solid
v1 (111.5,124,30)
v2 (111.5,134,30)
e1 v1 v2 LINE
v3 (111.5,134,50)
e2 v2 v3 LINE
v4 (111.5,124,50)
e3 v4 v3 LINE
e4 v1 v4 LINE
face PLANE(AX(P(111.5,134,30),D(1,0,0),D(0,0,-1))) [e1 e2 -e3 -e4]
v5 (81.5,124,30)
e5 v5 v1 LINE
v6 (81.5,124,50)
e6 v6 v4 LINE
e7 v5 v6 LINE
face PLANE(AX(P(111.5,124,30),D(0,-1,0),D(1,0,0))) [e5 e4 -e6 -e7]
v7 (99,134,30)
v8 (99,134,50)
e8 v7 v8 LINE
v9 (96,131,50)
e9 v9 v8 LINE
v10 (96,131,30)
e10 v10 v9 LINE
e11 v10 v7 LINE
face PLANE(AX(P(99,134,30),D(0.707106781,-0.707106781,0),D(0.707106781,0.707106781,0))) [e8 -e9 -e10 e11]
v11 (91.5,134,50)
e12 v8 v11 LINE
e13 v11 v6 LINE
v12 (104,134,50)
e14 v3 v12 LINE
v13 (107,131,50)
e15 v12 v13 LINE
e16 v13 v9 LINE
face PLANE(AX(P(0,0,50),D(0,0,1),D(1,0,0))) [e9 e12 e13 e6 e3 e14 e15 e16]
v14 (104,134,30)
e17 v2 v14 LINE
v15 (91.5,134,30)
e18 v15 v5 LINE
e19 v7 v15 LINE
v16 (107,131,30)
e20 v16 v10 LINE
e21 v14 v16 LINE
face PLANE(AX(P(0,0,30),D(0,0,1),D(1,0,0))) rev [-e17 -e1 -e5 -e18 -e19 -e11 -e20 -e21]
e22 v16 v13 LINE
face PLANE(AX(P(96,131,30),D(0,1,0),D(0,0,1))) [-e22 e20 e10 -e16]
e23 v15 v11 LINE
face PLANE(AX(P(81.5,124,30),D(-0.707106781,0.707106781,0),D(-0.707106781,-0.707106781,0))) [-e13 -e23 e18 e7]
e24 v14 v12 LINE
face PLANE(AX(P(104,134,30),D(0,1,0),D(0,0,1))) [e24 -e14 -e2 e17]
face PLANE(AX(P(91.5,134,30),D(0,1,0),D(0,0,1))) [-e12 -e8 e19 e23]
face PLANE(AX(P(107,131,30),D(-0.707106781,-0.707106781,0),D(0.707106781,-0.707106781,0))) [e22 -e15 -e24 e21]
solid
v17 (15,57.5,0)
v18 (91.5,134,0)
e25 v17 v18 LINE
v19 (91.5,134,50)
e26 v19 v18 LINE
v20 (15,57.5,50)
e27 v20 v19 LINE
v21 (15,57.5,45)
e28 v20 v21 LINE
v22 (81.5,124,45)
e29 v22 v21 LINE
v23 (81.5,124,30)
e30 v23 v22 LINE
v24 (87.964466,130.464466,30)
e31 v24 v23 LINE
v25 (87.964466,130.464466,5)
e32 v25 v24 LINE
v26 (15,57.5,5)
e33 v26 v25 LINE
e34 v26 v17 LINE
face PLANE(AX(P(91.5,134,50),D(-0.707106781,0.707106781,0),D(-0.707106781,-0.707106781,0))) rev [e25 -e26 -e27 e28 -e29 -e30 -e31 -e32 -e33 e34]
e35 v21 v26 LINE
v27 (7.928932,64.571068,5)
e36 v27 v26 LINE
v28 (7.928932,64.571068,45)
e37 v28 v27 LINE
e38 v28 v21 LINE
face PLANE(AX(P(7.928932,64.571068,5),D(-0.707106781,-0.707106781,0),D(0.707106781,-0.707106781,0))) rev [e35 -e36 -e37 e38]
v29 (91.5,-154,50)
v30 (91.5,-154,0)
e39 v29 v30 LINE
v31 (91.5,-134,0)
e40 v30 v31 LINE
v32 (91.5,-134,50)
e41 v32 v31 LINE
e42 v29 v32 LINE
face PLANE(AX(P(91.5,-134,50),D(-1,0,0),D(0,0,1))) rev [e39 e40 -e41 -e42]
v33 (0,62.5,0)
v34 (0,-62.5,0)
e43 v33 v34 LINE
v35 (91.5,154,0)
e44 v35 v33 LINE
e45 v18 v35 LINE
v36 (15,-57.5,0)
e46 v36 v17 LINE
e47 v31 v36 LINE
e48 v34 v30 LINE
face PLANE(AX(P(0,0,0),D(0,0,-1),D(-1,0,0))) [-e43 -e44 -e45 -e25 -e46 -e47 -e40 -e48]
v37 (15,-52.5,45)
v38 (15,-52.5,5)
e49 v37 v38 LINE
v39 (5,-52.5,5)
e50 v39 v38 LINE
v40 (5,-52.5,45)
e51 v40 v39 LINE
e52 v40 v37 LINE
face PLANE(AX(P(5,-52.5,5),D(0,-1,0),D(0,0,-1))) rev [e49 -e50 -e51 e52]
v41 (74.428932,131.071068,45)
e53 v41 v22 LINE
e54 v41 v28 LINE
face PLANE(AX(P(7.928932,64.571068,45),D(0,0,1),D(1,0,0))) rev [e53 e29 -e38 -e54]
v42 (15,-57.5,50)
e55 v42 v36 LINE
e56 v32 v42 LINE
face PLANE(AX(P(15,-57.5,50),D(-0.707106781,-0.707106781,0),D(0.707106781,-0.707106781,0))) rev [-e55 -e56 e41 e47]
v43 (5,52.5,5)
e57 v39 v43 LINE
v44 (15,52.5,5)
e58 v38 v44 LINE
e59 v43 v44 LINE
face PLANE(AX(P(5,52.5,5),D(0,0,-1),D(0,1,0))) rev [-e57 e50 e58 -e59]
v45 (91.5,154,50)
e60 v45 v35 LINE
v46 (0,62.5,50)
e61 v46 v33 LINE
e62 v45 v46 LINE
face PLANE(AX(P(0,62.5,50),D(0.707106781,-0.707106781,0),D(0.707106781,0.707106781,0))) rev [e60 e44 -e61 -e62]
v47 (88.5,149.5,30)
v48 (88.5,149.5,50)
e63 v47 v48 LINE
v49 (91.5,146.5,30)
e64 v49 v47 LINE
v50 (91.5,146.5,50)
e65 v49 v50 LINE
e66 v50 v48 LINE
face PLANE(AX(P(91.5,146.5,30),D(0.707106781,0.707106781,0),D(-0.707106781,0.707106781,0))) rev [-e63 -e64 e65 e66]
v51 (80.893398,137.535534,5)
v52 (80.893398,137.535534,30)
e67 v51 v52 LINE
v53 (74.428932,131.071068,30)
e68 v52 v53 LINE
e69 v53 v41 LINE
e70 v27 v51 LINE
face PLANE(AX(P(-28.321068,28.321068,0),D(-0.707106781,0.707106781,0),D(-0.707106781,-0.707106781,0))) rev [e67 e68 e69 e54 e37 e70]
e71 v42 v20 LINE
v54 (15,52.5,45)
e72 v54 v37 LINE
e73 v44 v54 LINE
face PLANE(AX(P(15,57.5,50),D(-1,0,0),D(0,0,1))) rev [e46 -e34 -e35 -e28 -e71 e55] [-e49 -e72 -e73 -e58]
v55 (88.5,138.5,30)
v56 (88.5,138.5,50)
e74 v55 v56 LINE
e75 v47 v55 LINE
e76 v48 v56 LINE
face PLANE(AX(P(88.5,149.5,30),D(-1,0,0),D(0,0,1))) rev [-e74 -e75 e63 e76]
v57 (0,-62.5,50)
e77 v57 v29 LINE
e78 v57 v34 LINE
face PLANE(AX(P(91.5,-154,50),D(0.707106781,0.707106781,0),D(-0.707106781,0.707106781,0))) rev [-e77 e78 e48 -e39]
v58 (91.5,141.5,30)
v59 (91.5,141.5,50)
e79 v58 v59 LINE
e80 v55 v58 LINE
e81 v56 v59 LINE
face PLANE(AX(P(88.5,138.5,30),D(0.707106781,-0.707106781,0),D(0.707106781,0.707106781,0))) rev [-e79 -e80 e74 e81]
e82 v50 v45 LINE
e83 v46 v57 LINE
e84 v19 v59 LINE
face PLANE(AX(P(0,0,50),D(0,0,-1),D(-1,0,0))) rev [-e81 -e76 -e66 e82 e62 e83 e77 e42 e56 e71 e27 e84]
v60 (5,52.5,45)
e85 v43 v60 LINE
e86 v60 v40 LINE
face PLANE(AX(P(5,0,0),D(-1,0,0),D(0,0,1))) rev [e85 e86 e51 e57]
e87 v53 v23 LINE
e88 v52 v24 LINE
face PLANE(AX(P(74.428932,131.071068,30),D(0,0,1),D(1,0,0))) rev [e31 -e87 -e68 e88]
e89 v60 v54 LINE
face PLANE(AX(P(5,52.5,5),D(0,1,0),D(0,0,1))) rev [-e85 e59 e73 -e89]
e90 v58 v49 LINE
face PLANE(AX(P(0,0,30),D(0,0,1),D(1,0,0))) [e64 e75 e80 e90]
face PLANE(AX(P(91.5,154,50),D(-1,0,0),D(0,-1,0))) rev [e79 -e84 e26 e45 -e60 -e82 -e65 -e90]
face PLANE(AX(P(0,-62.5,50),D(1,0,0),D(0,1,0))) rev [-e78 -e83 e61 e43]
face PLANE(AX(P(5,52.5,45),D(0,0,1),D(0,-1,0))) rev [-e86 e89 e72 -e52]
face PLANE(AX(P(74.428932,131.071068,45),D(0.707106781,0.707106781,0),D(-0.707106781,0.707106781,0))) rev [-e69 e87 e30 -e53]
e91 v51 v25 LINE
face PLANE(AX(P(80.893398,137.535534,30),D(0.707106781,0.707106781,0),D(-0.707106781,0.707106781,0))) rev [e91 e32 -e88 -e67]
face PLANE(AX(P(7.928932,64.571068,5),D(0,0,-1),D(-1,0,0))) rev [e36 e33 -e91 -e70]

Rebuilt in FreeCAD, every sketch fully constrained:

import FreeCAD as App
import Part
import Sketcher

doc = App.newDocument("Part")
body = doc.addObject("PartDesign::Body", "Body")

# Sketch on XY plane
sketch1 = body.newObject("Sketcher::SketchObject", "Sketch")
sketch1.AttachmentSupport = (doc.getObject("XY_Plane"), [""])
sketch1.MapMode = "FlatFace"
sketch1.addGeometry(Part.LineSegment(App.Vector(0, 62, 0), App.Vector(0, -62, 0)), False)
sketch1.addGeometry(Part.LineSegment(App.Vector(0, -62, 0), App.Vector(92, -154, 0)), False)
sketch1.addGeometry(Part.LineSegment(App.Vector(92, -154, 0), App.Vector(92, -134, 0)), False)
sketch1.addGeometry(Part.LineSegment(App.Vector(92, -134, 0), App.Vector(15, -58, 0)), False)
sketch1.addGeometry(Part.LineSegment(App.Vector(15, -58, 0), App.Vector(15, 58, 0)), False)
sketch1.addGeometry(Part.LineSegment(App.Vector(15, 58, 0), App.Vector(92, 134, 0)), False)
sketch1.addGeometry(Part.LineSegment(App.Vector(92, 134, 0), App.Vector(92, 154, 0)), False)
sketch1.addGeometry(Part.LineSegment(App.Vector(92, 154, 0), App.Vector(0, 62, 0)), False)
sketch1.addConstraint(Sketcher.Constraint("Coincident", 0, 2, 1, 1))
sketch1.addConstraint(Sketcher.Constraint("Coincident", 1, 2, 2, 1))
sketch1.addConstraint(Sketcher.Constraint("Coincident", 2, 2, 3, 1))
sketch1.addConstraint(Sketcher.Constraint("Coincident", 3, 2, 4, 1))
sketch1.addConstraint(Sketcher.Constraint("Coincident", 4, 2, 5, 1))
sketch1.addConstraint(Sketcher.Constraint("Coincident", 5, 2, 6, 1))
sketch1.addConstraint(Sketcher.Constraint("Coincident", 6, 2, 7, 1))
sketch1.addConstraint(Sketcher.Constraint("Coincident", 7, 2, 0, 1))
sketch1.addConstraint(Sketcher.Constraint("Vertical", 0))
sketch1.addConstraint(Sketcher.Constraint("Vertical", 2))
sketch1.addConstraint(Sketcher.Constraint("Vertical", 4))
sketch1.addConstraint(Sketcher.Constraint("Vertical", 6))
sketch1.addConstraint(Sketcher.Constraint("Symmetric", 0, 2, 7, 2, -1, 1))
sketch1.addConstraint(Sketcher.Constraint("Symmetric", 2, 2, 5, 2, -1))
sketch1.addConstraint(Sketcher.Constraint("Parallel", 1, 3))
sketch1.addConstraint(Sketcher.Constraint("Perpendicular", 3, 5))
sketch1.addConstraint(Sketcher.Constraint("Parallel", 5, 7))
sketch1.addConstraint(Sketcher.Constraint("Equal", 2, 6))
sketch1.addConstraint(Sketcher.Constraint("DistanceY", 0, 2, 0, 1, 125.0))
sketch1.addConstraint(Sketcher.Constraint("DistanceY", 2, 1, 2, 2, 20.0))
sketch1.addConstraint(Sketcher.Constraint("DistanceY", 4, 1, 4, 2, 115.0))
sketch1.addConstraint(Sketcher.Constraint("DistanceY", 1, 2, -1, 1, 154.0))
pad1 = body.newObject("PartDesign::Pad", "Pad")
pad1.Profile = sketch1
pad1.Length = 50

# Sketch on an angled plane
sketch2 = body.newObject("Sketcher::SketchObject", "Sketch001")
sketch2.Placement = App.Placement(App.Vector(-21.25, 21.25, 0), App.Rotation(App.Vector(0, 0, -1), App.Vector(0.707106781, 0.707106781, 0), App.Vector(0.707106781, -0.707106781, 0), "ZXY"))
sketch2.addGeometry(Part.LineSegment(App.Vector(-45, 51, 0), App.Vector(-5, 51, 0)), False)
sketch2.addGeometry(Part.LineSegment(App.Vector(-5, 51, 0), App.Vector(-5, 154, 0)), False)
sketch2.addGeometry(Part.LineSegment(App.Vector(-5, 154, 0), App.Vector(-30, 154, 0)), False)
sketch2.addGeometry(Part.LineSegment(App.Vector(-30, 154, 0), App.Vector(-30, 145, 0)), False)
sketch2.addGeometry(Part.LineSegment(App.Vector(-30, 145, 0), App.Vector(-45, 145, 0)), False)
sketch2.addGeometry(Part.LineSegment(App.Vector(-45, 145, 0), App.Vector(-45, 51, 0)), False)
sketch2.addConstraint(Sketcher.Constraint("Coincident", 0, 2, 1, 1))
sketch2.addConstraint(Sketcher.Constraint("Coincident", 1, 2, 2, 1))
sketch2.addConstraint(Sketcher.Constraint("Coincident", 2, 2, 3, 1))
sketch2.addConstraint(Sketcher.Constraint("Coincident", 3, 2, 4, 1))
sketch2.addConstraint(Sketcher.Constraint("Coincident", 4, 2, 5, 1))
sketch2.addConstraint(Sketcher.Constraint("Coincident", 5, 2, 0, 1))
sketch2.addConstraint(Sketcher.Constraint("Horizontal", 0))
sketch2.addConstraint(Sketcher.Constraint("Vertical", 1))
sketch2.addConstraint(Sketcher.Constraint("Horizontal", 2))
sketch2.addConstraint(Sketcher.Constraint("Vertical", 3))
sketch2.addConstraint(Sketcher.Constraint("Horizontal", 4))
sketch2.addConstraint(Sketcher.Constraint("Vertical", 5))
sketch2.addConstraint(Sketcher.Constraint("DistanceX", 0, 1, 0, 2, 40.0))
sketch2.addConstraint(Sketcher.Constraint("DistanceX", 2, 2, 2, 1, 25.0))
sketch2.addConstraint(Sketcher.Constraint("DistanceX", 0, 2, -1, 1, 5.0))
sketch2.addConstraint(Sketcher.Constraint("DistanceY", 5, 2, 5, 1, 94.045202))
sketch2.addConstraint(Sketcher.Constraint("DistanceY", 1, 1, 1, 2, 103.187337))
sketch2.addConstraint(Sketcher.Constraint("DistanceY", -1, 1, 0, 2, 51.265242))
pocket1 = body.newObject("PartDesign::Pocket", "Pocket")
pocket1.Profile = sketch2
pocket1.Length = 10

# Sketch on YZ plane
sketch3 = body.newObject("Sketcher::SketchObject", "Sketch002")
sketch3.AttachmentSupport = (doc.getObject("YZ_Plane"), [""])
sketch3.MapMode = "FlatFace"
sketch3.AttachmentOffset = App.Placement(App.Vector(0, 0, 15), App.Rotation())
sketch3.addGeometry(Part.LineSegment(App.Vector(52, 45, 0), App.Vector(-52, 45, 0)), False)
sketch3.addGeometry(Part.LineSegment(App.Vector(-52, 45, 0), App.Vector(-52, 5, 0)), False)
sketch3.addGeometry(Part.LineSegment(App.Vector(-52, 5, 0), App.Vector(52, 5, 0)), False)
sketch3.addGeometry(Part.LineSegment(App.Vector(52, 5, 0), App.Vector(52, 45, 0)), False)
sketch3.addConstraint(Sketcher.Constraint("Coincident", 0, 2, 1, 1))
sketch3.addConstraint(Sketcher.Constraint("Coincident", 1, 2, 2, 1))
sketch3.addConstraint(Sketcher.Constraint("Coincident", 2, 2, 3, 1))
sketch3.addConstraint(Sketcher.Constraint("Coincident", 3, 2, 0, 1))
sketch3.addConstraint(Sketcher.Constraint("Horizontal", 0))
sketch3.addConstraint(Sketcher.Constraint("Vertical", 1))
sketch3.addConstraint(Sketcher.Constraint("Horizontal", 2))
sketch3.addConstraint(Sketcher.Constraint("Vertical", 3))
sketch3.addConstraint(Sketcher.Constraint("DistanceX", 0, 2, 0, 1, 105.0))
sketch3.addConstraint(Sketcher.Constraint("DistanceY", 1, 2, 1, 1, 40.0))
sketch3.addConstraint(Sketcher.Constraint("DistanceY", -1, 1, 0, 2, 45.0))
sketch3.addConstraint(Sketcher.Constraint("DistanceX", 0, 2, -1, 1, 52.5))
pocket2 = body.newObject("PartDesign::Pocket", "Pocket001")
pocket2.Profile = sketch3
pocket2.Length = 10

# Sketch on XY plane
sketch4 = body.newObject("Sketcher::SketchObject", "Sketch003")
sketch4.AttachmentSupport = (doc.getObject("XY_Plane"), [""])
sketch4.MapMode = "FlatFace"
sketch4.AttachmentOffset = App.Placement(App.Vector(0, 0, 50), App.Rotation())
sketch4.addGeometry(Part.LineSegment(App.Vector(91.5, 146.5, 0), App.Vector(88.5, 149.5, 0)), False)
sketch4.addGeometry(Part.LineSegment(App.Vector(88.5, 149.5, 0), App.Vector(88.5, 138.5, 0)), False)
sketch4.addGeometry(Part.LineSegment(App.Vector(88.5, 138.5, 0), App.Vector(91.5, 141.5, 0)), False)
sketch4.addGeometry(Part.LineSegment(App.Vector(91.5, 141.5, 0), App.Vector(91.5, 146.5, 0)), False)
sketch4.addConstraint(Sketcher.Constraint("Coincident", 0, 2, 1, 1))
sketch4.addConstraint(Sketcher.Constraint("Coincident", 1, 2, 2, 1))
sketch4.addConstraint(Sketcher.Constraint("Coincident", 2, 2, 3, 1))
sketch4.addConstraint(Sketcher.Constraint("Coincident", 3, 2, 0, 1))
sketch4.addConstraint(Sketcher.Constraint("Vertical", 1))
sketch4.addConstraint(Sketcher.Constraint("Vertical", 3))
sketch4.addConstraint(Sketcher.Constraint("Perpendicular", 0, 2))
sketch4.addConstraint(Sketcher.Constraint("Equal", 0, 2))
sketch4.addConstraint(Sketcher.Constraint("DistanceY", 1, 2, 1, 1, 11.0))
sketch4.addConstraint(Sketcher.Constraint("DistanceY", 3, 1, 3, 2, 5.0))
sketch4.addConstraint(Sketcher.Constraint("DistanceX", -1, 1, 0, 2, 88.5))
sketch4.addConstraint(Sketcher.Constraint("DistanceY", -1, 1, 0, 2, 149.5))
pocket3 = body.newObject("PartDesign::Pocket", "Pocket002")
pocket3.Profile = sketch4
pocket3.Length = 20
body2 = doc.addObject("PartDesign::Body", "Body001")

# Sketch on XY plane
sketch5 = body2.newObject("Sketcher::SketchObject", "Sketch004")
sketch5.AttachmentSupport = (doc.getObject("XY_Plane001"), [""])
sketch5.MapMode = "FlatFace"
sketch5.AttachmentOffset = App.Placement(App.Vector(0, 0, 50), App.Rotation())
sketch5.addGeometry(Part.LineSegment(App.Vector(99, 134, 0), App.Vector(91.5, 134, 0)), False)
sketch5.addGeometry(Part.LineSegment(App.Vector(91.5, 134, 0), App.Vector(81.5, 124, 0)), False)
sketch5.addGeometry(Part.LineSegment(App.Vector(81.5, 124, 0), App.Vector(111.5, 124, 0)), False)
sketch5.addGeometry(Part.LineSegment(App.Vector(111.5, 124, 0), App.Vector(111.5, 134, 0)), False)
sketch5.addGeometry(Part.LineSegment(App.Vector(111.5, 134, 0), App.Vector(104, 134, 0)), False)
sketch5.addGeometry(Part.LineSegment(App.Vector(104, 134, 0), App.Vector(107, 131, 0)), False)
sketch5.addGeometry(Part.LineSegment(App.Vector(107, 131, 0), App.Vector(96, 131, 0)), False)
sketch5.addGeometry(Part.LineSegment(App.Vector(96, 131, 0), App.Vector(99, 134, 0)), False)
sketch5.addConstraint(Sketcher.Constraint("Coincident", 0, 2, 1, 1))
sketch5.addConstraint(Sketcher.Constraint("Coincident", 1, 2, 2, 1))
sketch5.addConstraint(Sketcher.Constraint("Coincident", 2, 2, 3, 1))
sketch5.addConstraint(Sketcher.Constraint("Coincident", 3, 2, 4, 1))
sketch5.addConstraint(Sketcher.Constraint("Coincident", 4, 2, 5, 1))
sketch5.addConstraint(Sketcher.Constraint("Coincident", 5, 2, 6, 1))
sketch5.addConstraint(Sketcher.Constraint("Coincident", 6, 2, 7, 1))
sketch5.addConstraint(Sketcher.Constraint("Coincident", 7, 2, 0, 1))
sketch5.addConstraint(Sketcher.Constraint("Horizontal", 0))
sketch5.addConstraint(Sketcher.Constraint("Horizontal", 2))
sketch5.addConstraint(Sketcher.Constraint("Vertical", 3))
sketch5.addConstraint(Sketcher.Constraint("Horizontal", 4))
sketch5.addConstraint(Sketcher.Constraint("Horizontal", 6))
sketch5.addConstraint(Sketcher.Constraint("Perpendicular", 1, 5))
sketch5.addConstraint(Sketcher.Constraint("Perpendicular", 5, 7))
sketch5.addConstraint(Sketcher.Constraint("Horizontal", 0, 2, 3, 2))
sketch5.addConstraint(Sketcher.Constraint("Equal", 0, 4))
sketch5.addConstraint(Sketcher.Constraint("Equal", 5, 7))
sketch5.addConstraint(Sketcher.Constraint("DistanceX", 2, 1, 2, 2, 30.0))
sketch5.addConstraint(Sketcher.Constraint("DistanceX", 6, 2, 6, 1, 11.0))
sketch5.addConstraint(Sketcher.Constraint("DistanceY", 3, 1, 3, 2, 10.0))
sketch5.addConstraint(Sketcher.Constraint("DistanceX", 0, 2, 0, 1, 7.5))
sketch5.addConstraint(Sketcher.Constraint("DistanceY", -1, 1, 0, 2, 134.0))
sketch5.addConstraint(Sketcher.Constraint("DistanceX", -1, 1, 4, 2, 104.0))
pad2 = body2.newObject("PartDesign::Pad", "Pad001")
pad2.Profile = sketch5
pad2.Length = 20
pad2.Reversed = True

doc.recompute()
